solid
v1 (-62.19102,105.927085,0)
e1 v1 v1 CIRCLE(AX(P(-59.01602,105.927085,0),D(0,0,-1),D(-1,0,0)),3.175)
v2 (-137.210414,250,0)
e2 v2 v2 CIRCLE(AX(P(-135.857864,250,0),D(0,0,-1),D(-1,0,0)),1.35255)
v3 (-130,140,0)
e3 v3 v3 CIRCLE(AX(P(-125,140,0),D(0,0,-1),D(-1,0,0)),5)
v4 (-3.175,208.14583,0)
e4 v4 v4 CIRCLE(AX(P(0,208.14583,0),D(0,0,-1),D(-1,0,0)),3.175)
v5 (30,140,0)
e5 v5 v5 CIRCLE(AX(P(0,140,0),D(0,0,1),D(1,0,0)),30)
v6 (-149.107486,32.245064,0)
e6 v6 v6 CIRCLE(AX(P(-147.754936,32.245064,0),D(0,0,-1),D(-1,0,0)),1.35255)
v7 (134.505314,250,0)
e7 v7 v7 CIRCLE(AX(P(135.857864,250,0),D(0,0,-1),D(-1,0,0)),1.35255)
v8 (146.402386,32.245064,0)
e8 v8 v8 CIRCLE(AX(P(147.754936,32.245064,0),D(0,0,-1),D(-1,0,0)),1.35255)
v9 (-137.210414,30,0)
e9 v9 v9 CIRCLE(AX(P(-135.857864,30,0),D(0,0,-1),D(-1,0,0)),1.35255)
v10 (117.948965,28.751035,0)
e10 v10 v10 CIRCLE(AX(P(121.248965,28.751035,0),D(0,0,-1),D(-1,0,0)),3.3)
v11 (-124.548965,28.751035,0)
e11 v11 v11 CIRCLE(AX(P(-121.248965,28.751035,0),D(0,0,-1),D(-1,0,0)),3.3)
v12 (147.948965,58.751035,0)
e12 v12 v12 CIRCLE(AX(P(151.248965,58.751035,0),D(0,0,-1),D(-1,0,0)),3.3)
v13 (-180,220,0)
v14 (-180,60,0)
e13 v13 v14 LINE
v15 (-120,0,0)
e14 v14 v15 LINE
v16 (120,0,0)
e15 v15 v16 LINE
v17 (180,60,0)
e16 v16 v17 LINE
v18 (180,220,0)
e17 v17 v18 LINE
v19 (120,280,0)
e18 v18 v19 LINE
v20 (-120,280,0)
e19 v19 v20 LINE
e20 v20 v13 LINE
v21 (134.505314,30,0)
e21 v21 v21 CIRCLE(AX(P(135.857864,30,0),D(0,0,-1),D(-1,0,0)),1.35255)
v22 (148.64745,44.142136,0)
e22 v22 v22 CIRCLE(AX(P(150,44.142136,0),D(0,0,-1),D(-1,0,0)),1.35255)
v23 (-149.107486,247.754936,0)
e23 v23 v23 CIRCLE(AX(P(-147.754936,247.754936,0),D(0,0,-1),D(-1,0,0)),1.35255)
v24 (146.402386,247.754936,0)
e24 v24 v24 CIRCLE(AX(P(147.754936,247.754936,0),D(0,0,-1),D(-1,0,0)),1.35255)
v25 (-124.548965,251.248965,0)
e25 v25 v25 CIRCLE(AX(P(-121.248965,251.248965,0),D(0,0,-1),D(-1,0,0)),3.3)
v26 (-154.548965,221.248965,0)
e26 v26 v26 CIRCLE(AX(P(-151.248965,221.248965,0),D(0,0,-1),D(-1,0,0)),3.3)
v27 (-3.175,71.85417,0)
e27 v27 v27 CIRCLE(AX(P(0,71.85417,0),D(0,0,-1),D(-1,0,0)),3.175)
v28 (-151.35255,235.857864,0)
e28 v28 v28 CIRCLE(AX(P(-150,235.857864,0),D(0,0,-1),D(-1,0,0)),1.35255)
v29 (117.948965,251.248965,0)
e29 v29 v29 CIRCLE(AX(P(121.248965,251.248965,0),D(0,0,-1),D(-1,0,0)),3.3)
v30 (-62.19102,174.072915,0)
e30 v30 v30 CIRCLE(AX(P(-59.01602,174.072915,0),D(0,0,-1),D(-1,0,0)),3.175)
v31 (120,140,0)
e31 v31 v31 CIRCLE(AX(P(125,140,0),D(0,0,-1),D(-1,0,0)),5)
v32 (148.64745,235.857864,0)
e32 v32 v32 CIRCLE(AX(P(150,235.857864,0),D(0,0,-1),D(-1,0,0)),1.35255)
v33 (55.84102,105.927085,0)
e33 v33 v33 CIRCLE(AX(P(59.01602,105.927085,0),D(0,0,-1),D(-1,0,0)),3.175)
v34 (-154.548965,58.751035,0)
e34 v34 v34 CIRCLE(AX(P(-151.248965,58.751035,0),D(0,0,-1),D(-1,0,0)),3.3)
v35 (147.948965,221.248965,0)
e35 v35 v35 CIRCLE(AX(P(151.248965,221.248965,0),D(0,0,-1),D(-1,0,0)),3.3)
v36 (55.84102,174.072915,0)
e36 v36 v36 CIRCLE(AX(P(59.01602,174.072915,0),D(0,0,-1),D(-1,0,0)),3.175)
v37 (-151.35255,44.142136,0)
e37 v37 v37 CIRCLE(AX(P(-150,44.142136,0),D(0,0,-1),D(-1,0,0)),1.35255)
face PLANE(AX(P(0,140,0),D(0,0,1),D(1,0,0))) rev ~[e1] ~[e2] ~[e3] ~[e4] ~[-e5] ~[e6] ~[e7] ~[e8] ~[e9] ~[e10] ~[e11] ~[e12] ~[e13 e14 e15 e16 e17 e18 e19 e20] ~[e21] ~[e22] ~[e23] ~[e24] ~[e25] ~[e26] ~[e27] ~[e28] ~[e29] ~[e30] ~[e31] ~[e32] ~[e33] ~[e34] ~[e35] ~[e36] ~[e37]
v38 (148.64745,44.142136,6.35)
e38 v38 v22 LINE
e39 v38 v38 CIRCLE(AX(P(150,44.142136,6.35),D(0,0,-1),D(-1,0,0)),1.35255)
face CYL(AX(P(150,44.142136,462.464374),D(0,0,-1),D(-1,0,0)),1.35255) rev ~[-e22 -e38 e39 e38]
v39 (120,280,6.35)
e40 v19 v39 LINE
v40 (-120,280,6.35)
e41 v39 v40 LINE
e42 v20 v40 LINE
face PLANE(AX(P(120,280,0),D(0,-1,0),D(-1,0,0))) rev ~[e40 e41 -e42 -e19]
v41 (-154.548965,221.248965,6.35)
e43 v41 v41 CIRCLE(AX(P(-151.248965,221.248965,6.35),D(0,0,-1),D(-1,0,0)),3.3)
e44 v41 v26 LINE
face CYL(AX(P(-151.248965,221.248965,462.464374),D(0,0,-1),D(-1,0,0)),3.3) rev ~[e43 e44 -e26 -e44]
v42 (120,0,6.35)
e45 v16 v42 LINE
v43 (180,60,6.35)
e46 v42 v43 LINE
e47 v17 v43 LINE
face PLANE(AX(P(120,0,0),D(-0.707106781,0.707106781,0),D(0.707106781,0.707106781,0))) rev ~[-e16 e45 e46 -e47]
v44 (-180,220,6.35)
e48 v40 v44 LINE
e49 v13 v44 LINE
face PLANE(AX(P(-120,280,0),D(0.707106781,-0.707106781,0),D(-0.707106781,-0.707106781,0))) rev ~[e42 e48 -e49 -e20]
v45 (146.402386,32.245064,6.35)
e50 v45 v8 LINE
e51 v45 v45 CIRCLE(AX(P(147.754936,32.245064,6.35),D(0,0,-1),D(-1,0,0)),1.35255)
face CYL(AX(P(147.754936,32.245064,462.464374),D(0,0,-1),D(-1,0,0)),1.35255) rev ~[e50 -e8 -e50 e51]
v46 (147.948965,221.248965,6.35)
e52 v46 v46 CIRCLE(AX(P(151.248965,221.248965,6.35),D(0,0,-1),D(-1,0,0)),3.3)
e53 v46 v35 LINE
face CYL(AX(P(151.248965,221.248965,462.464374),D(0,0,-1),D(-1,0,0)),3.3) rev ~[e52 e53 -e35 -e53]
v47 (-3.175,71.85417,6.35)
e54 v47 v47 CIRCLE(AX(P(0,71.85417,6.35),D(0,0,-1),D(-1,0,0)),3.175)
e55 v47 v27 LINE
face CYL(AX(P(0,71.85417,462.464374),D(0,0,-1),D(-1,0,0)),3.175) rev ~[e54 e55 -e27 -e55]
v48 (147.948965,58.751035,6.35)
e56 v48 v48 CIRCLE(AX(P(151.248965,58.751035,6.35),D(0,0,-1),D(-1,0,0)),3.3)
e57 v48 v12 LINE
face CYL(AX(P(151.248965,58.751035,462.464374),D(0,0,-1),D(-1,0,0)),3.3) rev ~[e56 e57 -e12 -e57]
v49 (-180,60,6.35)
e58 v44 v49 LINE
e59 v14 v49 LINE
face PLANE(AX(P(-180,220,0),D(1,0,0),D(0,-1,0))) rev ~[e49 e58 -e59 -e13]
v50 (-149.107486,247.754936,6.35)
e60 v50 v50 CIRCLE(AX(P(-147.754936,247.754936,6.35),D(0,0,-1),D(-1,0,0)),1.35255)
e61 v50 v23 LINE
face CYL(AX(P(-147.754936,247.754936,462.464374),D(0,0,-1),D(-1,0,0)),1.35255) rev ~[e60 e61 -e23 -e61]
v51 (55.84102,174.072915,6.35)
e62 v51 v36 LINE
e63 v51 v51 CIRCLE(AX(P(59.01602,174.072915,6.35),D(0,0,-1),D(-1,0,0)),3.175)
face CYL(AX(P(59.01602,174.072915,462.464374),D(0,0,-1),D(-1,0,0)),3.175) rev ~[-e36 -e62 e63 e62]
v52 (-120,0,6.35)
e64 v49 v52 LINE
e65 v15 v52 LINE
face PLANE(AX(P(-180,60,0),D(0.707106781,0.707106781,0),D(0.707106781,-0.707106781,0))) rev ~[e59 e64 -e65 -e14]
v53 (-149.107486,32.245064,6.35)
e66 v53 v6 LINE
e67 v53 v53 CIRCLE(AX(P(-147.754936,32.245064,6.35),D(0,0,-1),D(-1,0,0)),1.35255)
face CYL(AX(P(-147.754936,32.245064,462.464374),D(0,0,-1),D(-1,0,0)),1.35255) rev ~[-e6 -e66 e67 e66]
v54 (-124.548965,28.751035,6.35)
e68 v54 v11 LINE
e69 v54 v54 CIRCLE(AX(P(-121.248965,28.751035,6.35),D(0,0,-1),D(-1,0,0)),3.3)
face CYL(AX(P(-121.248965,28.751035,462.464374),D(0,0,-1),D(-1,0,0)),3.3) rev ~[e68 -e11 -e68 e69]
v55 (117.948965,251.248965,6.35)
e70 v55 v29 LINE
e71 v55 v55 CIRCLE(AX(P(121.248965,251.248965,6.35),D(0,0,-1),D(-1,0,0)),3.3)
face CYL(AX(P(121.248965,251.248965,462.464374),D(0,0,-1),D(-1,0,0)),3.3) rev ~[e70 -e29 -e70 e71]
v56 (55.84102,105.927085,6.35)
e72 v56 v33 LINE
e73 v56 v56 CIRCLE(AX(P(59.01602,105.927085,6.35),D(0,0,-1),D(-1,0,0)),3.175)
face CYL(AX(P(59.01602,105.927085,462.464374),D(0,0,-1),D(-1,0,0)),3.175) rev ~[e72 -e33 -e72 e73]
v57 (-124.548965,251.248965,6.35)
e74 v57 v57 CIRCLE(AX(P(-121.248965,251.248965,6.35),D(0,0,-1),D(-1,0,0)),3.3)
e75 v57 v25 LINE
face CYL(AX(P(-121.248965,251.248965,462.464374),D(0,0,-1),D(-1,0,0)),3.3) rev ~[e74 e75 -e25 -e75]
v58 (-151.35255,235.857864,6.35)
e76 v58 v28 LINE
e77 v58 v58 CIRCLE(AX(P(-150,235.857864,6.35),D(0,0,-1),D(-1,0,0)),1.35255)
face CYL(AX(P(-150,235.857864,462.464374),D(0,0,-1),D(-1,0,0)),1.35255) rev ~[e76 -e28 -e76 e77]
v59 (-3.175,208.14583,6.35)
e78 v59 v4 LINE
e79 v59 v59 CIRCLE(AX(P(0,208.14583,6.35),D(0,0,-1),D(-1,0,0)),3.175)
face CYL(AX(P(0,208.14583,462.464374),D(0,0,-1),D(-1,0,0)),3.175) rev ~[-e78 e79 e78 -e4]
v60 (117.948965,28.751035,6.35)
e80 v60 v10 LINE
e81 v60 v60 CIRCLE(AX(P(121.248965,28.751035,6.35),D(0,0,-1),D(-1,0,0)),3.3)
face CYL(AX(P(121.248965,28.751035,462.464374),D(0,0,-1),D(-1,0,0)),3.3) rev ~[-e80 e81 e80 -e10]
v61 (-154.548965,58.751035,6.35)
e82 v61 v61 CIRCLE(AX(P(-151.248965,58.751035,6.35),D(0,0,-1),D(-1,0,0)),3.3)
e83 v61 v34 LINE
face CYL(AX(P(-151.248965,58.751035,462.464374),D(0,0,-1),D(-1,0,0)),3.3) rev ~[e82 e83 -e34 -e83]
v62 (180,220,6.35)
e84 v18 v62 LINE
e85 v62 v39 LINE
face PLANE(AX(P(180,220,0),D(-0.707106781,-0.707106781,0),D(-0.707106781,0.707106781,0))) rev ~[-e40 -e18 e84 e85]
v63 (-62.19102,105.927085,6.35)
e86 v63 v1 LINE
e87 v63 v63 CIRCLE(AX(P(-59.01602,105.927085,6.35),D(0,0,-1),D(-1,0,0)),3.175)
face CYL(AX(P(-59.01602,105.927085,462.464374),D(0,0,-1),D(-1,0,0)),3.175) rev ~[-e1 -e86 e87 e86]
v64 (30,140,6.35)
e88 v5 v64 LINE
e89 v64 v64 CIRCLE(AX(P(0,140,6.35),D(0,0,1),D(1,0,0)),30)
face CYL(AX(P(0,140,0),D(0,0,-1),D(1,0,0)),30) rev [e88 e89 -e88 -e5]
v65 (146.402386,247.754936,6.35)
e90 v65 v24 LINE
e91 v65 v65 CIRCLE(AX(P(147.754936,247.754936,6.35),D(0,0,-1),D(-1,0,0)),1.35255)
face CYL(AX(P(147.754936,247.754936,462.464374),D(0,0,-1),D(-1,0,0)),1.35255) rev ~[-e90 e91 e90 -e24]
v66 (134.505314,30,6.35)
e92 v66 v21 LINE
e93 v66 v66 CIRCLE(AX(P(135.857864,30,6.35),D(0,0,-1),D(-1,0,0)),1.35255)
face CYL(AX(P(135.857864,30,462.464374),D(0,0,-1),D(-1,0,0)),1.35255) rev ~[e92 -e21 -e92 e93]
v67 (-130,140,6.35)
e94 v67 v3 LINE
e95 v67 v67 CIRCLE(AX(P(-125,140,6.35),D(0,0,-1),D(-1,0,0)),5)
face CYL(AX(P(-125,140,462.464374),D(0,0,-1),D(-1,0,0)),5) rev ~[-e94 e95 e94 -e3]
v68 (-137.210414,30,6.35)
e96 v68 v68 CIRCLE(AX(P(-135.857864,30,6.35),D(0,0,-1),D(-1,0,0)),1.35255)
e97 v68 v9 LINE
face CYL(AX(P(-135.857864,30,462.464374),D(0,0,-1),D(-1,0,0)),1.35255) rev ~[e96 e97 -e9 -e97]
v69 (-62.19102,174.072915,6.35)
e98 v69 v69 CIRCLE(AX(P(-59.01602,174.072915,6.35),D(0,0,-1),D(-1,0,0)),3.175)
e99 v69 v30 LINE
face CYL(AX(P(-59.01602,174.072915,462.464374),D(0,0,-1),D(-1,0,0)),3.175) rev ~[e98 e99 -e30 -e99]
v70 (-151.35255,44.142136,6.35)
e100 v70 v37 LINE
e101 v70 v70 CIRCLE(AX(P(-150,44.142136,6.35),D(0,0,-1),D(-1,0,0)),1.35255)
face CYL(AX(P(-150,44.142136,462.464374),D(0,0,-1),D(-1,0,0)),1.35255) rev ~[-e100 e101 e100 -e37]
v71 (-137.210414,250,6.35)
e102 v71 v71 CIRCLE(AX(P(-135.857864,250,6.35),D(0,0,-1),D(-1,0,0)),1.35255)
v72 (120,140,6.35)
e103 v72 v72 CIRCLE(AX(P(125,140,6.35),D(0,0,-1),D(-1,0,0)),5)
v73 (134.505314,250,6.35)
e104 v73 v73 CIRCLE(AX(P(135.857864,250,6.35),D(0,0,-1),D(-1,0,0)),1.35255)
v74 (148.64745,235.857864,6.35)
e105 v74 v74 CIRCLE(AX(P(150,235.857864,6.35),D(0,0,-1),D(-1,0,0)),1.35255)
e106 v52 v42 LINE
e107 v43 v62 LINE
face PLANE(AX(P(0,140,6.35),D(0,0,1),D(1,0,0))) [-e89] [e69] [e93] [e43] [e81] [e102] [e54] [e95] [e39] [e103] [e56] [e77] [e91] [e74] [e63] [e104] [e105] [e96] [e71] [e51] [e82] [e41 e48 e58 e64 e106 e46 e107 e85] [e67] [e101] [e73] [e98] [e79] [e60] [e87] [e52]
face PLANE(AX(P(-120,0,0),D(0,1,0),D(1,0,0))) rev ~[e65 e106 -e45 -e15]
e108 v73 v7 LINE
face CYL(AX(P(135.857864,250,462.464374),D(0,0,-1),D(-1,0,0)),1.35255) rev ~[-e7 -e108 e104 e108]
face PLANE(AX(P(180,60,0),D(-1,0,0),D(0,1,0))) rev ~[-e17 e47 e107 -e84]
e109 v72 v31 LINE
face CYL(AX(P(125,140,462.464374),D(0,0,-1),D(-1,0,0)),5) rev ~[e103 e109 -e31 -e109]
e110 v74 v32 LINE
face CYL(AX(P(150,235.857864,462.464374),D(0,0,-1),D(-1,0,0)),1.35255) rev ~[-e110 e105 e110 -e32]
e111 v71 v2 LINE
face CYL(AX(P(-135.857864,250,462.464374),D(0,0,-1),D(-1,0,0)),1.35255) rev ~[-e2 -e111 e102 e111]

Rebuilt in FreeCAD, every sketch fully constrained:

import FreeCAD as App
import Part
import Sketcher
Q = App.Units.Quantity

doc = App.newDocument("Part")
body = doc.addObject("PartDesign::Body", "Body")

sketch1 = doc.addObject("Sketcher::SketchObject", "Sketch")
body.addObject(sketch1)
sketch1.AttachmentSupport = (doc.XY_Plane, [""])
sketch1.MapMode = "FlatFace"
sketch1.addGeometry([
    Part.LineSegment(App.Vector(-180, 60, 0), App.Vector(-120, 0, 0)),
    Part.LineSegment(App.Vector(-120, 0, 0), App.Vector(120, 0, 0)),
    Part.LineSegment(App.Vector(120, 0, 0), App.Vector(180, 60, 0)),
    Part.LineSegment(App.Vector(180, 60, 0), App.Vector(180, 220, 0)),
    Part.LineSegment(App.Vector(180, 220, 0), App.Vector(120, 280, 0)),
    Part.LineSegment(App.Vector(120, 280, 0), App.Vector(-120, 280, 0)),
    Part.LineSegment(App.Vector(-120, 280, 0), App.Vector(-180, 220, 0)),
    Part.LineSegment(App.Vector(-180, 220, 0), App.Vector(-180, 60, 0)),
    Part.Circle(App.Vector(0, 140, 0), App.Vector(0, 0, 1), 30),
], False)
sketch1.addConstraint([
    Sketcher.Constraint("Coincident", 0, 2, 1, 1),
    Sketcher.Constraint("Coincident", 1, 2, 2, 1),
    Sketcher.Constraint("Coincident", 2, 2, 3, 1),
    Sketcher.Constraint("Coincident", 3, 2, 4, 1),
    Sketcher.Constraint("Coincident", 4, 2, 5, 1),
    Sketcher.Constraint("Coincident", 5, 2, 6, 1),
    Sketcher.Constraint("Coincident", 6, 2, 7, 1),
    Sketcher.Constraint("Coincident", 7, 2, 0, 1),
    Sketcher.Constraint("Horizontal", 1),
    Sketcher.Constraint("Vertical", 3),
    Sketcher.Constraint("Horizontal", 5),
    Sketcher.Constraint("Vertical", 7),
    Sketcher.Constraint("Symmetric", 0, 2, 1, 2, -1, 1),
    Sketcher.Constraint("Symmetric", 3, 2, 6, 2, -2),
    Sketcher.Constraint("PointOnObject", 8, 3, -2),
    Sketcher.Constraint("Perpendicular", 0, 2),
    Sketcher.Constraint("Perpendicular", 2, 4),
    Sketcher.Constraint("Perpendicular", 4, 6),
    Sketcher.Constraint("Horizontal", 2, 2, 7, 2),
    Sketcher.Constraint("Vertical", 1, 2, 4, 2),
    Sketcher.Constraint("Diameter", 8, Q("60 mm")),
    Sketcher.Constraint("DistanceX", 1, 1, 1, 2, Q("240 mm")),
    Sketcher.Constraint("DistanceY", 3, 1, 3, 2, Q("160 mm")),
    Sketcher.Constraint("DistanceY", -1, 1, 8, 3, Q("140 mm")),
    Sketcher.Constraint("DistanceX", -1, 1, 2, 2, Q("180 mm")),
])
pad1 = doc.addObject("PartDesign::Pad", "Pad")
body.addObject(pad1)
pad1.Profile = sketch1
pad1.Length = 6.35

sketch2 = doc.addObject("Sketcher::SketchObject", "Sketch001")
body.addObject(sketch2)
sketch2.AttachmentSupport = (doc.XY_Plane, [""])
sketch2.MapMode = "FlatFace"
sketch2.AttachmentOffset = App.Placement(App.Vector(0, 0, 6.35), App.Rotation())
sketch2.addGeometry([
    Part.Circle(App.Vector(-125, 140, 0), App.Vector(0, 0, 1), 5),
    Part.Circle(App.Vector(125, 140, 0), App.Vector(0, 0, 1), 5),
], False)
sketch2.addConstraint([
    Sketcher.Constraint("Equal", 0, 1),
    Sketcher.Constraint("Symmetric", 0, 3, 1, 3, -2),
    Sketcher.Constraint("Diameter", 0, Q("10 mm")),
    Sketcher.Constraint("DistanceX", 0, 3, -1, 1, Q("125 mm")),
    Sketcher.Constraint("DistanceY", -1, 1, 0, 3, Q("140 mm")),
])
doc.recompute()
hole = doc.addObject("PartDesign::Hole", "Hole")
body.addObject(hole)
hole.Profile = sketch2
hole.ThreadType = "None"
hole.Diameter = 10
hole.DepthType = "ThroughAll"

sketch3 = doc.addObject("Sketcher::SketchObject", "Sketch002")
body.addObject(sketch3)
sketch3.AttachmentSupport = (doc.XY_Plane, [""])
sketch3.MapMode = "FlatFace"
sketch3.AttachmentOffset = App.Placement(App.Vector(0, 0, 6.35), App.Rotation())
sketch3.addGeometry([
    Part.Circle(App.Vector(-121.2, 251.2, 0), App.Vector(0, 0, 1), 3.3),
    Part.Circle(App.Vector(-151.2, 221.2, 0), App.Vector(0, 0, 1), 3.3),
    Part.Circle(App.Vector(-151.2, 58.8, 0), App.Vector(0, 0, 1), 3.3),
    Part.Circle(App.Vector(-121.2, 28.8, 0), App.Vector(0, 0, 1), 3.3),
    Part.Circle(App.Vector(121.2, 28.8, 0), App.Vector(0, 0, 1), 3.3),
    Part.Circle(App.Vector(151.2, 58.8, 0), App.Vector(0, 0, 1), 3.3),
    Part.Circle(App.Vector(151.2, 221.2, 0), App.Vector(0, 0, 1), 3.3),
    Part.Circle(App.Vector(121.2, 251.2, 0), App.Vector(0, 0, 1), 3.3),
], False)
sketch3.addConstraint([
    Sketcher.Constraint("Equal", 0, 1),
    Sketcher.Constraint("Equal", 1, 2),
    Sketcher.Constraint("Equal", 2, 3),
    Sketcher.Constraint("Equal", 3, 4),
    Sketcher.Constraint("Equal", 4, 5),
    Sketcher.Constraint("Equal", 5, 6),
    Sketcher.Constraint("Equal", 6, 7),
    Sketcher.Constraint("Symmetric", 3, 3, 4, 3, -2),
    Sketcher.Constraint("Symmetric", 2, 3, 5, 3, -2),
    Sketcher.Constraint("Symmetric", 1, 3, 6, 3, -2),
    Sketcher.Constraint("Symmetric", 0, 3, 7, 3, -2),
    Sketcher.Constraint("Vertical", 1, 3, 2, 3),
    Sketcher.Constraint("Vertical", 0, 3, 3, 3),
    Sketcher.Constraint("Diameter", 0, Q("6.6 mm")),
    Sketcher.Constraint("DistanceX", 1, 3, 0, 3, Q("30 mm")),
    Sketcher.Constraint("DistanceY", 1, 3, 0, 3, Q("30 mm")),
    Sketcher.Constraint("DistanceY", 3, 3, 2, 3, Q("30 mm")),
    Sketcher.Constraint("DistanceY", 2, 3, 1, 3, Q("162.49793 mm")),
    Sketcher.Constraint("DistanceX", 3, 3, 4, 3, Q("242.49793 mm")),
    Sketcher.Constraint("DistanceY", -1, 1, 0, 3, Q("251.248965 mm")),
])
doc.recompute()
hole2 = doc.addObject("PartDesign::Hole", "Hole001")
body.addObject(hole2)
hole2.Profile = sketch3
hole2.ThreadType = "None"
hole2.Diameter = 6.6
hole2.DepthType = "ThroughAll"

sketch4 = doc.addObject("Sketcher::SketchObject", "Sketch003")
body.addObject(sketch4)
sketch4.AttachmentSupport = (doc.XY_Plane, [""])
sketch4.MapMode = "FlatFace"
sketch4.AttachmentOffset = App.Placement(App.Vector(0, 0, 6.35), App.Rotation())
sketch4.addGeometry([
    Part.Circle(App.Vector(-150, 235.9, 0), App.Vector(0, 0, 1), 1.4),
    Part.Circle(App.Vector(-135.9, 250, 0), App.Vector(0, 0, 1), 1.4),
], False)
sketch4.addConstraint([
    Sketcher.Constraint("Equal", 0, 1),
    Sketcher.Constraint("DistanceX", 0, 3, -1, 1, Q("150 mm")),
    Sketcher.Constraint("DistanceY", -1, 1, 1, 3, Q("250 mm")),
    Sketcher.Constraint("Diameter", 0, Q("2.7051 mm")),
    Sketcher.Constraint("DistanceY", -1, 1, 0, 3, Q("235.857864 mm")),
    Sketcher.Constraint("DistanceX", 1, 3, -1, 1, Q("135.857864 mm")),
])
doc.recompute()
hole3 = doc.addObject("PartDesign::Hole", "Hole002")
body.addObject(hole3)
hole3.Profile = sketch4
hole3.ThreadType = "None"
hole3.Diameter = 2.7051
hole3.DepthType = "ThroughAll"

sketch5 = doc.addObject("Sketcher::SketchObject", "Sketch004")
body.addObject(sketch5)
sketch5.AttachmentSupport = (doc.XY_Plane, [""])
sketch5.MapMode = "FlatFace"
sketch5.AttachmentOffset = App.Placement(App.Vector(0, 0, 6.35), App.Rotation())
sketch5.addGeometry([
    Part.Circle(App.Vector(-150, 44.1, 0), App.Vector(0, 0, 1), 1.4),
    Part.Circle(App.Vector(-135.9, 30, 0), App.Vector(0, 0, 1), 1.4),
    Part.Circle(App.Vector(135.9, 250, 0), App.Vector(0, 0, 1), 1.4),
    Part.Circle(App.Vector(150, 235.9, 0), App.Vector(0, 0, 1), 1.4),
    Part.Circle(App.Vector(135.9, 30, 0), App.Vector(0, 0, 1), 1.4),
    Part.Circle(App.Vector(150, 44.1, 0), App.Vector(0, 0, 1), 1.4),
], False)
sketch5.addConstraint([
    Sketcher.Constraint("Equal", 0, 1),
    Sketcher.Constraint("Equal", 1, 2),
    Sketcher.Constraint("Equal", 2, 3),
    Sketcher.Constraint("Equal", 3, 4),
    Sketcher.Constraint("Equal", 4, 5),
    Sketcher.Constraint("Symmetric", 1, 3, 4, 3, -2),
    Sketcher.Constraint("Symmetric", 0, 3, 5, 3, -2),
    Sketcher.Constraint("Vertical", 2, 3, 4, 3),
    Sketcher.Constraint("Vertical", 3, 3, 5, 3),
    Sketcher.Constraint("DistanceX", 0, 3, -1, 1, Q("150 mm")),
    Sketcher.Constraint("DistanceY", -1, 1, 1, 3, Q("30 mm")),
    Sketcher.Constraint("DistanceY", -1, 1, 2, 3, Q("250 mm")),
    Sketcher.Constraint("Diameter", 0, Q("2.7051 mm")),
    Sketcher.Constraint("DistanceX", 1, 3, 2, 3, Q("271.715729 mm")),
    Sketcher.Constraint("DistanceY", 0, 3, 3, 3, Q("191.715729 mm")),
    Sketcher.Constraint("DistanceY", -1, 1, 0, 3, Q("44.142136 mm")),
])
doc.recompute()
hole4 = doc.addObject("PartDesign::Hole", "Hole003")
body.addObject(hole4)
hole4.Profile = sketch5
hole4.ThreadType = "None"
hole4.Diameter = 2.7051
hole4.DepthType = "ThroughAll"

sketch6 = doc.addObject("Sketcher::SketchObject", "Sketch005")
body.addObject(sketch6)
sketch6.AttachmentSupport = (doc.XY_Plane, [""])
sketch6.MapMode = "FlatFace"
sketch6.AttachmentOffset = App.Placement(App.Vector(0, 0, 6.35), App.Rotation())
sketch6.addGeometry([
    Part.Circle(App.Vector(0, 208.1, 0), App.Vector(0, 0, 1), 3.2),
    Part.Circle(App.Vector(59, 174.1, 0), App.Vector(0, 0, 1), 3.2),
    Part.Circle(App.Vector(-59, 174.1, 0), App.Vector(0, 0, 1), 3.2),
    Part.Circle(App.Vector(-59, 105.9, 0), App.Vector(0, 0, 1), 3.2),
    Part.Circle(App.Vector(0, 71.9, 0), App.Vector(0, 0, 1), 3.2),
    Part.Circle(App.Vector(59, 105.9, 0), App.Vector(0, 0, 1), 3.2),
], False)
sketch6.addConstraint([
    Sketcher.Constraint("Equal", 0, 1),
    Sketcher.Constraint("Equal", 1, 2),
    Sketcher.Constraint("Equal", 2, 3),
    Sketcher.Constraint("Equal", 3, 4),
    Sketcher.Constraint("Equal", 4, 5),
    Sketcher.Constraint("Symmetric", 1, 3, 2, 3, -2),
    Sketcher.Constraint("Symmetric", 3, 3, 5, 3, -2),
    Sketcher.Constraint("PointOnObject", 0, 3, -2),
    Sketcher.Constraint("PointOnObject", 4, 3, -2),
    Sketcher.Constraint("Vertical", 2, 3, 3, 3),
    Sketcher.Constraint("Diameter", 0, Q("6.35 mm")),
    Sketcher.Constraint("DistanceY", -1, 1, 0, 3, Q("208.14583 mm")),
    Sketcher.Constraint("DistanceX", -1, 1, 1, 3, Q("59.01602 mm")),
    Sketcher.Constraint("DistanceY", -1, 1, 4, 3, Q("71.85417 mm")),
    Sketcher.Constraint("DistanceY", 3, 3, 2, 3, Q("68.14583 mm")),
    Sketcher.Constraint("DistanceY", -1, 1, 1, 3, Q("174.072915 mm")),
])
doc.recompute()
hole5 = doc.addObject("PartDesign::Hole", "Hole004")
body.addObject(hole5)
hole5.Profile = sketch6
hole5.ThreadType = "None"
hole5.Diameter = 6.35
hole5.DepthType = "ThroughAll"

sketch7 = doc.addObject("Sketcher::SketchObject", "Sketch006")
body.addObject(sketch7)
sketch7.AttachmentSupport = (doc.XY_Plane, [""])
sketch7.MapMode = "FlatFace"
sketch7.AttachmentOffset = App.Placement(App.Vector(0, 0, 6.35), App.Rotation())
sketch7.addGeometry([
    Part.Circle(App.Vector(147.8, 247.8, 0), App.Vector(0, 0, 1), 1.4),
    Part.Circle(App.Vector(147.8, 32.2, 0), App.Vector(0, 0, 1), 1.4),
    Part.Circle(App.Vector(-147.8, 32.2, 0), App.Vector(0, 0, 1), 1.4),
    Part.Circle(App.Vector(-147.8, 247.8, 0), App.Vector(0, 0, 1), 1.4),
], False)
sketch7.addConstraint([
    Sketcher.Constraint("Equal", 0, 1),
    Sketcher.Constraint("Equal", 1, 2),
    Sketcher.Constraint("Equal", 2, 3),
    Sketcher.Constraint("Symmetric", 1, 3, 2, 3, -2),
    Sketcher.Constraint("Symmetric", 0, 3, 3, 3, -2),
    Sketcher.Constraint("Vertical", 0, 3, 1, 3),
    Sketcher.Constraint("Diameter", 0, Q("2.7051 mm")),
    Sketcher.Constraint("DistanceY", 1, 3, 0, 3, Q("215.509872 mm")),
    Sketcher.Constraint("DistanceX", 2, 3, 1, 3, Q("295.509872 mm")),
    Sketcher.Constraint("DistanceY", -1, 1, 0, 3, Q("247.754936 mm")),
])
doc.recompute()
hole6 = doc.addObject("PartDesign::Hole", "Hole005")
body.addObject(hole6)
hole6.Profile = sketch7
hole6.ThreadType = "None"
hole6.Diameter = 2.7051
hole6.DepthType = "ThroughAll"

doc.recompute()
